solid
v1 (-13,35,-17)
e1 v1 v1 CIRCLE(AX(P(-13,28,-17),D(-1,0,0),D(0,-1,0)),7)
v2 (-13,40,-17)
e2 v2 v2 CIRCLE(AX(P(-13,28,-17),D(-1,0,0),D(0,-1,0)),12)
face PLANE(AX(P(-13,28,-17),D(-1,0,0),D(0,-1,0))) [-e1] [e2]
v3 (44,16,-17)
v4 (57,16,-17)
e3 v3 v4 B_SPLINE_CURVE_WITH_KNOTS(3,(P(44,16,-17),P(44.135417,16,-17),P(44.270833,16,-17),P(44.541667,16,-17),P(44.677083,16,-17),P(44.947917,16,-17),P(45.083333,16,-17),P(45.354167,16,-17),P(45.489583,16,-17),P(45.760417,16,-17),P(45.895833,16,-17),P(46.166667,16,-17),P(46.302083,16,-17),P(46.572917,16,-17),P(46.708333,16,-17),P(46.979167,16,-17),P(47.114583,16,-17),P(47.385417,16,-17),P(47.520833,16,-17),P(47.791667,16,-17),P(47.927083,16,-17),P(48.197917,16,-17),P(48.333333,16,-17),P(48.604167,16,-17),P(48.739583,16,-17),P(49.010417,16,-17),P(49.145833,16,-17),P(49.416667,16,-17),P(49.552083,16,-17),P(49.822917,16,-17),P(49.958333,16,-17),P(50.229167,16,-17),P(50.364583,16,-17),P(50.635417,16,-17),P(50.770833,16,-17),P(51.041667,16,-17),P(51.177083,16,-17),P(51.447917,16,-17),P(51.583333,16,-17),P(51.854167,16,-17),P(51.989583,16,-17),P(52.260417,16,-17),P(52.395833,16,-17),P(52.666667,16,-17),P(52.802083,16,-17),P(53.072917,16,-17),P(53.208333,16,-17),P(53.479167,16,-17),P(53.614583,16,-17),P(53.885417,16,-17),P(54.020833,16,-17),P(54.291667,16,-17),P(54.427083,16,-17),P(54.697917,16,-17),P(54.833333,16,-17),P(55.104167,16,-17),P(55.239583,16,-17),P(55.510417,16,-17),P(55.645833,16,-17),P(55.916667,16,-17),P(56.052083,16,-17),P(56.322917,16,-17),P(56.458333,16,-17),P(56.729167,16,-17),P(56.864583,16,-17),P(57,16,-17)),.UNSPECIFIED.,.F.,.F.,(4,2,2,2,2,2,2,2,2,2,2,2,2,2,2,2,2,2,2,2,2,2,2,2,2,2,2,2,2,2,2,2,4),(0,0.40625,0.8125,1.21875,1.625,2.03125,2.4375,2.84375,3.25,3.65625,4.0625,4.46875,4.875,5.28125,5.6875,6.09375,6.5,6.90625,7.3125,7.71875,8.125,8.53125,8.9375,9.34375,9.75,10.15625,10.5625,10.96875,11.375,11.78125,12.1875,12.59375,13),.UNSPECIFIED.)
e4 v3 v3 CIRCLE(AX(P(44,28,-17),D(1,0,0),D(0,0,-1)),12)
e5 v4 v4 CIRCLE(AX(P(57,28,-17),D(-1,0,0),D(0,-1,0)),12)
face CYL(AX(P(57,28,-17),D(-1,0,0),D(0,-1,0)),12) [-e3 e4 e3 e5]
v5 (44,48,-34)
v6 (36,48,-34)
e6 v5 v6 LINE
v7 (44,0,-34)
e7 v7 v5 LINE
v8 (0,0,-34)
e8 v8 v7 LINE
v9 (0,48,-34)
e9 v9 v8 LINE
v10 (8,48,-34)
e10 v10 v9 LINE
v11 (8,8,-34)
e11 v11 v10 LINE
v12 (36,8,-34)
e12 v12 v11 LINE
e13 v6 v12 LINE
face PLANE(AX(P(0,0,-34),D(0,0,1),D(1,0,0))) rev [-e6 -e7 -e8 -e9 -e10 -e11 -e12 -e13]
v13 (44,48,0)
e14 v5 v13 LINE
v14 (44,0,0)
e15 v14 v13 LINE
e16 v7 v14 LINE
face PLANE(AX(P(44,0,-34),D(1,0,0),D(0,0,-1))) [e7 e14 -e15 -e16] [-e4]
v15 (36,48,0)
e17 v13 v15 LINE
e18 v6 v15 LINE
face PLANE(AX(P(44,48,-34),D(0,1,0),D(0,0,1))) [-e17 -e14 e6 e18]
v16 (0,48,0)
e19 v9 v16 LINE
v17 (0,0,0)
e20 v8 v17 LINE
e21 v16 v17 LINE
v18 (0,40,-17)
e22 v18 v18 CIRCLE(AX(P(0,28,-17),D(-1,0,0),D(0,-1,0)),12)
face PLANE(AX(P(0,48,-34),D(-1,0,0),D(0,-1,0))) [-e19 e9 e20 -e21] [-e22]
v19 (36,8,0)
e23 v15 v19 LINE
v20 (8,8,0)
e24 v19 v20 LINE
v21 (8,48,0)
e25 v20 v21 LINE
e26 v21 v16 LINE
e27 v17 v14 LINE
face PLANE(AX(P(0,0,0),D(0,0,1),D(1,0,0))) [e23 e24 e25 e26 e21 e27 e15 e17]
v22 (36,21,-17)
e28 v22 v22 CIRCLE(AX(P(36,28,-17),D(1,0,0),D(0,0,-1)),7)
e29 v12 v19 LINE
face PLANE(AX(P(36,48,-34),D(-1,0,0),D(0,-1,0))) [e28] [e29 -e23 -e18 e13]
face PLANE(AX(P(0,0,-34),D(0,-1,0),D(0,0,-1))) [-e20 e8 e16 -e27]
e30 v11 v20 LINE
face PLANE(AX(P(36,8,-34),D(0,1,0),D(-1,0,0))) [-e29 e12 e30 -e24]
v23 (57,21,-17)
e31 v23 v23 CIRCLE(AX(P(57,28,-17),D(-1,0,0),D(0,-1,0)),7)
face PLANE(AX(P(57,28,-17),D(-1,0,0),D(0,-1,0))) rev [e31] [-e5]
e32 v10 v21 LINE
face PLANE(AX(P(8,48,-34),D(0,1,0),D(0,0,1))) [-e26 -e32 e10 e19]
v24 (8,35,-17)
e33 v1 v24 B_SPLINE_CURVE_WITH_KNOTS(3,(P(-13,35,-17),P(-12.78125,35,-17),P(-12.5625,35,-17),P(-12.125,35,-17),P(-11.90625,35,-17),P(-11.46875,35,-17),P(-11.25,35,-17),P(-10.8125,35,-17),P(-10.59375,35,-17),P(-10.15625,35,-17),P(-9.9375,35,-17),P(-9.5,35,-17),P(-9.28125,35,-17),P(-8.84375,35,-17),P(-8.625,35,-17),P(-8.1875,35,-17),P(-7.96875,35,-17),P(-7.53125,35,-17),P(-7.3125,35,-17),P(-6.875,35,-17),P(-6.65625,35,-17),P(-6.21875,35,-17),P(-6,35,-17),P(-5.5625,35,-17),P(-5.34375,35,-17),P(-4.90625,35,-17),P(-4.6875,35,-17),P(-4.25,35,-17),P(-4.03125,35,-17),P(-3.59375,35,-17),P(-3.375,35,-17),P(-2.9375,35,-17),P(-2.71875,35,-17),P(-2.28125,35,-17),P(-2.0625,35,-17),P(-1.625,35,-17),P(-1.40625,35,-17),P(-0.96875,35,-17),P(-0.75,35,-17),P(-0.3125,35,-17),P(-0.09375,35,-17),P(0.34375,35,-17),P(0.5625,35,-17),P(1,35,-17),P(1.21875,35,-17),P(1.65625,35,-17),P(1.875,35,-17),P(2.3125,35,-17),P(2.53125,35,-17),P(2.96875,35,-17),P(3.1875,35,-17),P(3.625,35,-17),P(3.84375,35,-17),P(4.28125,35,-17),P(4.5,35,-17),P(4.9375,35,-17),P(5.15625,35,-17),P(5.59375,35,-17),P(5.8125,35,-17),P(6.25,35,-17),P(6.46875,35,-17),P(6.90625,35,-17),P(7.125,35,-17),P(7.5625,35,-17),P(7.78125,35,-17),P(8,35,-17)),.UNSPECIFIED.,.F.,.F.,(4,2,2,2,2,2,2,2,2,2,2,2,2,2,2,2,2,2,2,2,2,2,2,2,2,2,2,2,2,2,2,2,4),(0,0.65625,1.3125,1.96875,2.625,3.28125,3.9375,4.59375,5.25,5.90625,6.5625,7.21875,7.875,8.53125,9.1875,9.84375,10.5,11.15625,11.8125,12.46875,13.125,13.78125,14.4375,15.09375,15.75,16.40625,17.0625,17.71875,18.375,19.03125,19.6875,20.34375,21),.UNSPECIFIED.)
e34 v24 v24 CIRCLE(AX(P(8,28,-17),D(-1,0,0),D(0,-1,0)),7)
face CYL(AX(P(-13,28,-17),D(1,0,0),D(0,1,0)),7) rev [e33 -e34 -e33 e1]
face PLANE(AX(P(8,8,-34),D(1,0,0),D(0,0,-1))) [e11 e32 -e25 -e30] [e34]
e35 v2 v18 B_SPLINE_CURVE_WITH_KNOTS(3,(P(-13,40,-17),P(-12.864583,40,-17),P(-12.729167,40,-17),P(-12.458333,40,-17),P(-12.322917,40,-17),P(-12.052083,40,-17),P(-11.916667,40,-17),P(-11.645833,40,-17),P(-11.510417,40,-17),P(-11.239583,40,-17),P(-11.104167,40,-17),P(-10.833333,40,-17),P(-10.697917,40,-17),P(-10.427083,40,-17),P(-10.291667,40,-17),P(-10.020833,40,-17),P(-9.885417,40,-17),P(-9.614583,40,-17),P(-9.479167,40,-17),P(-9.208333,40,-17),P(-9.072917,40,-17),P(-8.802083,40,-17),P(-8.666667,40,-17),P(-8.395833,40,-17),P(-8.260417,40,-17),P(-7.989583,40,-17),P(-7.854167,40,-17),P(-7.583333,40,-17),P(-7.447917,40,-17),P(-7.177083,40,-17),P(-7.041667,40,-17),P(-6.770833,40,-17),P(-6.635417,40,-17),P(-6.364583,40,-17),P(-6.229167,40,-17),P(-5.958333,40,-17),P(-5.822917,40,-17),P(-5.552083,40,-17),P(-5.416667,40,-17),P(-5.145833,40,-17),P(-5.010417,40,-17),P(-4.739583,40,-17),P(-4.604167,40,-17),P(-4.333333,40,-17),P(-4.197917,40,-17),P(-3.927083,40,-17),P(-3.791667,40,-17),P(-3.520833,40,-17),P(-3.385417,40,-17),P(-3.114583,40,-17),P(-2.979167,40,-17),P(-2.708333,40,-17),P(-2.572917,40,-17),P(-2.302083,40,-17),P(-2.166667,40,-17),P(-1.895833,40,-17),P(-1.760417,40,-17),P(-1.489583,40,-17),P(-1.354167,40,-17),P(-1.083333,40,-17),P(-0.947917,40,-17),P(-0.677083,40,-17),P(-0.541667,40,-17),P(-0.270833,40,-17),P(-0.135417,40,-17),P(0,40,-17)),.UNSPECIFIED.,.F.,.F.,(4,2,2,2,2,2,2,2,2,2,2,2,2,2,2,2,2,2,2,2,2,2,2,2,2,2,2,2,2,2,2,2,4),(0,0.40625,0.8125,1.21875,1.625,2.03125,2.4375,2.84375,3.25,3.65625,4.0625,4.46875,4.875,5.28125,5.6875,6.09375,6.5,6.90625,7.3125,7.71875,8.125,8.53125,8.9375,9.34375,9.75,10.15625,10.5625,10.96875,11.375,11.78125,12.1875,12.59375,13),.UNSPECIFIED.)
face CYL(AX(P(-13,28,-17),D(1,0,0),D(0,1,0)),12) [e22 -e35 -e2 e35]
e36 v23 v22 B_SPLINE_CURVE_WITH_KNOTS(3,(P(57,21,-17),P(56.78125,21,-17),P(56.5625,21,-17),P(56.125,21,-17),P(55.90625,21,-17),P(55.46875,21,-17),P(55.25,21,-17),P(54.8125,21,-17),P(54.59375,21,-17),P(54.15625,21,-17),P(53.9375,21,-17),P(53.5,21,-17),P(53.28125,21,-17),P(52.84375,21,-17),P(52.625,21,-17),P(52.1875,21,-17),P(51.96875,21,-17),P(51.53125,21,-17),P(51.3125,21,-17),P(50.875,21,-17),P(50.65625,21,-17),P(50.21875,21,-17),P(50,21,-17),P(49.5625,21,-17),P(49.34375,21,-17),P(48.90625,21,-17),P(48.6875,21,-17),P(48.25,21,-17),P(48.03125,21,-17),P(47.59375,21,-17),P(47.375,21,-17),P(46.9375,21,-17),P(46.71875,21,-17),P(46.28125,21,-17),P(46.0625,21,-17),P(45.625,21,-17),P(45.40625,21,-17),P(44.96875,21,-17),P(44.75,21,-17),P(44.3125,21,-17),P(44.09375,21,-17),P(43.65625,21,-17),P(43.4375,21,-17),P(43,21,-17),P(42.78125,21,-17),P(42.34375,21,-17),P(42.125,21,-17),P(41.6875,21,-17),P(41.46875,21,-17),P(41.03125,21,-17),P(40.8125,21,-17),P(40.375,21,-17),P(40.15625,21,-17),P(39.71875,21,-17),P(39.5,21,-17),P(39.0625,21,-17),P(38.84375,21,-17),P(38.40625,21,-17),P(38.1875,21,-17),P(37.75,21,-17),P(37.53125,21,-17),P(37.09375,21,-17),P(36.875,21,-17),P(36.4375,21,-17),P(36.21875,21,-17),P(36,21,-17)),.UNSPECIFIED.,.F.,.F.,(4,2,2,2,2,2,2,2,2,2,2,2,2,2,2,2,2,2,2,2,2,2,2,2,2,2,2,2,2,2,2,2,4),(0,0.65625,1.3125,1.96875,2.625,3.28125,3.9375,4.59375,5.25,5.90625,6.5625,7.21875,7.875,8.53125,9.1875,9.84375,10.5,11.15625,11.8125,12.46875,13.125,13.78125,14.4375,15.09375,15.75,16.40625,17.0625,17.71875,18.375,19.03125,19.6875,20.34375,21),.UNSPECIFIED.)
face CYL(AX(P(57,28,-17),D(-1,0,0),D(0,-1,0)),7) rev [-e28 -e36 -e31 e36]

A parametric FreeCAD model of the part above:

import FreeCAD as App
import Part
import Sketcher
Q = App.Units.Quantity


def add_polygon(sketch, points):
    """Adds a closed chain of lines whose ends are joined by coincident constraints."""
    first, n = sketch.GeometryCount, len(points)
    for a, b in zip(points, points[1:] + points[:1]):
        sketch.addGeometry(Part.LineSegment(App.Vector(*a, 0), App.Vector(*b, 0)), False)
    for i in range(n):
        sketch.addConstraint(Sketcher.Constraint("Coincident", first + i, 2, first + (i + 1) % n, 1))

doc = App.newDocument("Part")
body = doc.addObject("PartDesign::Body", "Body")

# Sketch on XY plane
sketch1 = body.newObject("Sketcher::SketchObject", "Sketch")
sketch1.AttachmentSupport = (doc.getObject("XY_Plane"), [""])
sketch1.MapMode = "FlatFace"
add_polygon(sketch1, [(0, 0), (44, 0), (44, 48), (36, 48), (36, 8), (8, 8), (8, 48), (0, 48)])  # lines 0-7
sketch1.addConstraint([
    Sketcher.Constraint("Horizontal", 0),
    Sketcher.Constraint("Vertical", 1),
    Sketcher.Constraint("Horizontal", 2),
    Sketcher.Constraint("Vertical", 3),
    Sketcher.Constraint("Horizontal", 4),
    Sketcher.Constraint("Vertical", 5),
    Sketcher.Constraint("Horizontal", 6),
    Sketcher.Constraint("Vertical", 7),
    Sketcher.Constraint("Coincident", 7, 2, -1, 1),
    Sketcher.Constraint("Horizontal", 2, 2, 5, 2),
    Sketcher.Constraint("Equal", 2, 6),
    Sketcher.Constraint("DistanceX", 0, 1, 0, 2, Q("44 mm")),
    Sketcher.Constraint("DistanceX", 2, 2, 2, 1, Q("8 mm")),
    Sketcher.Constraint("DistanceY", 1, 1, 1, 2, Q("48 mm")),
    Sketcher.Constraint("DistanceY", 3, 2, 3, 1, Q("40 mm")),
])
pad1 = body.newObject("PartDesign::Pad", "Pad")
pad1.Profile = sketch1
pad1.Length = 34
pad1.Reversed = True

# Sketch on YZ plane
sketch2 = body.newObject("Sketcher::SketchObject", "Sketch001")
sketch2.AttachmentSupport = (doc.getObject("YZ_Plane"), [""])
sketch2.MapMode = "FlatFace"
sketch2.addGeometry([
    Part.Circle(App.Vector(28, -17, 0), App.Vector(0, 0, 1), 12),
    Part.Circle(App.Vector(28, -17, 0), App.Vector(0, 0, 1), 7),
], False)
sketch2.addConstraint([
    Sketcher.Constraint("Coincident", 1, 3, 0, 3),
    Sketcher.Constraint("Diameter", 0, Q("24 mm")),
    Sketcher.Constraint("Diameter", 1, Q("14 mm")),
    Sketcher.Constraint("DistanceX", -1, 1, 0, 3, Q("28 mm")),
    Sketcher.Constraint("DistanceY", 0, 3, -1, 1, Q("17 mm")),
])
pad2 = body.newObject("PartDesign::Pad", "Pad001")
pad2.Profile = sketch2
pad2.Length = 13
pad2.Reversed = True

# Sketch on YZ plane
sketch3 = body.newObject("Sketcher::SketchObject", "Sketch002")
sketch3.AttachmentSupport = (doc.getObject("YZ_Plane"), [""])
sketch3.MapMode = "FlatFace"
sketch3.AttachmentOffset = App.Placement(App.Vector(0, 0, 57), App.Rotation())
sketch3.addGeometry([
    Part.Circle(App.Vector(28, -17, 0), App.Vector(0, 0, 1), 12),
    Part.Circle(App.Vector(28, -17, 0), App.Vector(0, 0, 1), 7),
], False)
sketch3.addConstraint([
    Sketcher.Constraint("Coincident", 1, 3, 0, 3),
    Sketcher.Constraint("Diameter", 0, Q("24 mm")),
    Sketcher.Constraint("Diameter", 1, Q("14 mm")),
    Sketcher.Constraint("DistanceX", -1, 1, 0, 3, Q("28 mm")),
    Sketcher.Constraint("DistanceY", 0, 3, -1, 1, Q("17 mm")),
])
pad3 = body.newObject("PartDesign::Pad", "Pad002")
pad3.Profile = sketch3
pad3.Length = 21
pad3.Reversed = True

# Sketch on YZ plane
sketch4 = body.newObject("Sketcher::SketchObject", "Sketch003")
sketch4.AttachmentSupport = (doc.getObject("YZ_Plane"), [""])
sketch4.MapMode = "FlatFace"
sketch4.AttachmentOffset = App.Placement(App.Vector(0, 0, 44), App.Rotation())
sketch4.addGeometry(Part.Circle(App.Vector(28, -17, 0), App.Vector(0, 0, 1), 7), False)
sketch4.addConstraint([
    Sketcher.Constraint("Diameter", 0, Q("14 mm")),
    Sketcher.Constraint("DistanceX", -1, 1, 0, 3, Q("28 mm")),
    Sketcher.Constraint("DistanceY", 0, 3, -1, 1, Q("17 mm")),
])
pocket1 = body.newObject("PartDesign::Pocket", "Pocket")
pocket1.Profile = sketch4
pocket1.Length = 8

# Sketch on YZ plane
sketch5 = body.newObject("Sketcher::SketchObject", "Sketch004")
sketch5.AttachmentSupport = (doc.getObject("YZ_Plane"), [""])
sketch5.MapMode = "FlatFace"
sketch5.AttachmentOffset = App.Placement(App.Vector(0, 0, 8), App.Rotation())
sketch5.addGeometry(Part.Circle(App.Vector(28, -17, 0), App.Vector(0, 0, 1), 7), False)
sketch5.addConstraint([
    Sketcher.Constraint("Diameter", 0, Q("14 mm")),
    Sketcher.Constraint("DistanceX", -1, 1, 0, 3, Q("28 mm")),
    Sketcher.Constraint("DistanceY", 0, 3, -1, 1, Q("17 mm")),
])
pocket2 = body.newObject("PartDesign::Pocket", "Pocket001")
pocket2.Profile = sketch5
pocket2.Length = 8

doc.recompute()
